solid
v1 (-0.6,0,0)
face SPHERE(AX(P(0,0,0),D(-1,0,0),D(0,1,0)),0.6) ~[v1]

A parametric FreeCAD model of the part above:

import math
import FreeCAD as App
import Part
import Sketcher
Q = App.Units.Quantity

doc = App.newDocument("Part")
body = doc.addObject("PartDesign::Body", "Body")

sketch1 = doc.addObject("Sketcher::SketchObject", "Sketch")
body.addObject(sketch1)
sketch1.AttachmentSupport = (doc.XY_Plane, [""])
sketch1.MapMode = "FlatFace"
sketch1.addGeometry(Part.LineSegment(App.Vector(-0.6, 0, 0), App.Vector(0.6, 0, 0)), False)
sketch1.addGeometry(Part.ArcOfCircle(Part.Circle(App.Vector(0, 0, 0), App.Vector(0, 0, 1), 0.6), math.radians(0), math.radians(180)), False)
sketch1.addConstraint(Sketcher.Constraint("Coincident", 0, 1, 1, 2))
sketch1.addConstraint(Sketcher.Constraint("Coincident", 1, 1, 0, 2))
sketch1.addConstraint(Sketcher.Constraint("Horizontal", 0))
sketch1.addConstraint(Sketcher.Constraint("Coincident", 1, 3, -1, 1))
sketch1.addConstraint(Sketcher.Constraint("PointOnObject", 0, 1, -1))
sketch1.addConstraint(Sketcher.Constraint("Radius", 1, Q("0.6 mm")))
revolution = doc.addObject("PartDesign::Revolution", "Revolution")
body.addObject(revolution)
revolution.Profile = sketch1
revolution.ReferenceAxis = (sketch1, ["H_Axis"])
revolution.Angle = 360

doc.recompute()
